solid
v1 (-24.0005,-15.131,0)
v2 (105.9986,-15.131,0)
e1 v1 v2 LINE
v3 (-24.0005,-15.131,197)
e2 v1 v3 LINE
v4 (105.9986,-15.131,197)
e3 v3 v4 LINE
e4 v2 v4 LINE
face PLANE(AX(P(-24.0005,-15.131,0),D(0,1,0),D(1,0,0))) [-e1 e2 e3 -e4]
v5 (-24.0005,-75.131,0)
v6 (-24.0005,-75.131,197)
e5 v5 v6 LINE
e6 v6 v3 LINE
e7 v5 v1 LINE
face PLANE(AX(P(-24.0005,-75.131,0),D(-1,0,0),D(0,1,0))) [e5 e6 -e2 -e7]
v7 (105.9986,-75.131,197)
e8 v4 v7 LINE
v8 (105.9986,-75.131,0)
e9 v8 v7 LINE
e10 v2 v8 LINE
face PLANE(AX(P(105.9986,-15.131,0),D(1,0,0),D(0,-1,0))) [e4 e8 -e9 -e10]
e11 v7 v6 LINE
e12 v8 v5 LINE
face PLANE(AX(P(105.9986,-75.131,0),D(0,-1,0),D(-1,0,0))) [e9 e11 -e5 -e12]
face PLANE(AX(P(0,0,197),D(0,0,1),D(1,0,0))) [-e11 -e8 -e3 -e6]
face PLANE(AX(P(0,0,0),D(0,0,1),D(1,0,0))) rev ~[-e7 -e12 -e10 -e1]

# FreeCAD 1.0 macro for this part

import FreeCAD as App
import Part
import Sketcher
from FreeCAD import Vector

doc = App.newDocument("Part")
body = doc.addObject("PartDesign::Body", "Body")

# Sketch on XY plane
sketch1 = body.newObject("Sketcher::SketchObject", "Sketch")
sketch1.AttachmentSupport = (doc.getObject("XY_Plane"), [""])
sketch1.MapMode = "FlatFace"
sketch1.addGeometry([
    Part.LineSegment(Vector(-24.0005, -75.131, 0), Vector(105.9986, -75.131, 0)),
    Part.LineSegment(Vector(105.9986, -75.131, 0), Vector(105.9986, -15.131, 0)),
    Part.LineSegment(Vector(105.9986, -15.131, 0), Vector(-24.0005, -15.131, 0)),
    Part.LineSegment(Vector(-24.0005, -15.131, 0), Vector(-24.0005, -75.131, 0)),
], False)
sketch1.addConstraint([
    Sketcher.Constraint("Coincident", 0, 2, 1, 1),
    Sketcher.Constraint("Coincident", 1, 2, 2, 1),
    Sketcher.Constraint("Coincident", 2, 2, 3, 1),
    Sketcher.Constraint("Coincident", 3, 2, 0, 1),
    Sketcher.Constraint("Horizontal", 0),
    Sketcher.Constraint("Vertical", 1),
    Sketcher.Constraint("Horizontal", 2),
    Sketcher.Constraint("Vertical", 3),
    Sketcher.Constraint("DistanceY", 1, 1, 1, 2, 60.0),
    Sketcher.Constraint("DistanceX", 0, 1, 0, 2, 129.999),
    Sketcher.Constraint("DistanceY", 0, 2, -1, 1, 75.131),
    Sketcher.Constraint("DistanceX", -1, 1, 0, 2, 105.9986),
])
pad1 = body.newObject("PartDesign::Pad", "Pad")
pad1.Profile = sketch1
pad1.Length = 197

doc.recompute()
